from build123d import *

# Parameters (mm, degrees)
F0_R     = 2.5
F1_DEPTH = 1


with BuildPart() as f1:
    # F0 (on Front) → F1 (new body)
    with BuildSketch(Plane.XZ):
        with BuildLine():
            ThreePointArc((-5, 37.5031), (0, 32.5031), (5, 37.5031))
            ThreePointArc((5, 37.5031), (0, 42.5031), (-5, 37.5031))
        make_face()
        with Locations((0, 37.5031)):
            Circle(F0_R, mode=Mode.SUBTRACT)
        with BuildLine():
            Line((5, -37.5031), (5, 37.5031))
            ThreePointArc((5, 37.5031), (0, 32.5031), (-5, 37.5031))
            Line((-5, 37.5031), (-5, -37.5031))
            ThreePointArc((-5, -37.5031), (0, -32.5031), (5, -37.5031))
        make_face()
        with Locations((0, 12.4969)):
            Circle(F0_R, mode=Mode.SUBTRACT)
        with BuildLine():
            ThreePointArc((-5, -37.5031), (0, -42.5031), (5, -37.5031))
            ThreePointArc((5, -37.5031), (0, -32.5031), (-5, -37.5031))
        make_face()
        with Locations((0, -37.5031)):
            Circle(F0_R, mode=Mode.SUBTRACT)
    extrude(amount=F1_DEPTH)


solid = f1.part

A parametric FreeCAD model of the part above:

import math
import FreeCAD as App
import Part
import Sketcher

V = App.Vector

doc = App.newDocument("Part")
body = doc.addObject("PartDesign::Body", "Body")

# Sketch on XZ plane
sketch1 = body.newObject("Sketcher::SketchObject", "Sketch")
sketch1.AttachmentSupport = (doc.getObject("XZ_Plane"), [""])
sketch1.MapMode = "FlatFace"
sketch1.addGeometry([
    Part.ArcOfCircle(Part.Circle(V(0, 37.5, 0), V(0, 0, 1), 5), math.radians(0), math.radians(180)),  # 0
    Part.LineSegment(V(-5, 37.5, 0), V(-5, -37.5, 0)),  # 1
    Part.ArcOfCircle(Part.Circle(V(0, -37.5, 0), V(0, 0, 1), 5), math.radians(180), math.radians(360)),  # 2
    Part.LineSegment(V(5, -37.5, 0), V(5, 37.5, 0)),  # 3
    Part.Circle(V(0, -37.5, 0), V(0, 0, 1), 2.5),  # 4
    Part.Circle(V(0, 12.5, 0), V(0, 0, 1), 2.5),  # 5
    Part.Circle(V(0, 37.5, 0), V(0, 0, 1), 2.5),  # 6
], False)
sketch1.addConstraint([
    Sketcher.Constraint("Tangent", 0, 2, 1, 1),
    Sketcher.Constraint("Tangent", 1, 2, 2, 1),
    Sketcher.Constraint("Tangent", 2, 2, 3, 1),
    Sketcher.Constraint("Tangent", 3, 2, 0, 1),
    Sketcher.Constraint("Vertical", 1),
    Sketcher.Constraint("Vertical", 3),
    Sketcher.Constraint("Coincident", 4, 3, 2, 3),
    Sketcher.Constraint("Coincident", 6, 3, 0, 3),
    Sketcher.Constraint("Equal", 4, 5),
    Sketcher.Constraint("Equal", 5, 6),
    Sketcher.Constraint("Symmetric", 0, 3, 2, 3, -1, 1),
    Sketcher.Constraint("PointOnObject", 5, 3, -2),
    Sketcher.Constraint("Diameter", 4, 5.0),
    Sketcher.Constraint("Radius", 0, 5.0),
    Sketcher.Constraint("DistanceY", 2, 3, 5, 3, 50.0),
    Sketcher.Constraint("DistanceY", 1, 2, 1, 1, 75.0062),
])
pad1 = body.newObject("PartDesign::Pad", "Pad")
pad1.Profile = sketch1
pad1.Length = 1

doc.recompute()
